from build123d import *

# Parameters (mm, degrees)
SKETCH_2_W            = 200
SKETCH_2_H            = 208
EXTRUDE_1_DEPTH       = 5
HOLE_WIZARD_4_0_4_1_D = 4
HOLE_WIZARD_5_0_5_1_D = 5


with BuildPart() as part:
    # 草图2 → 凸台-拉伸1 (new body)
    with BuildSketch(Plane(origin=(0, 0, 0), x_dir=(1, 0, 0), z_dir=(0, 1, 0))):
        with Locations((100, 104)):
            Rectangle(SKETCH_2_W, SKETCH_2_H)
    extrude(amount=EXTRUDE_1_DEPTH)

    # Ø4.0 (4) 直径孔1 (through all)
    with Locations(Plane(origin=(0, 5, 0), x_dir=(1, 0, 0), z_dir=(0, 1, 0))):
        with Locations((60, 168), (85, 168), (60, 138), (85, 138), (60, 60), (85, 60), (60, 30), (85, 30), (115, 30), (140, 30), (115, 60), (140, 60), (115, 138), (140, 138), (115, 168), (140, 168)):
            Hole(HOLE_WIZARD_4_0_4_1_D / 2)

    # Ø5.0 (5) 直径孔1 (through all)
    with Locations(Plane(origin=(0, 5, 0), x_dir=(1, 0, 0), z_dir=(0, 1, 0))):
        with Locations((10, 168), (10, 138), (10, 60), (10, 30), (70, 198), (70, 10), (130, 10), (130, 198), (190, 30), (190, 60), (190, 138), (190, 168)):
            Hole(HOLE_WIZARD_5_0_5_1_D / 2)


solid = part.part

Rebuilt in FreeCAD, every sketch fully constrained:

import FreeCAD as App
import Part
import Sketcher

V = App.Vector
Q = App.Units.Quantity


def add_polygon(sketch, points):
    """Adds a closed chain of lines whose ends are joined by coincident constraints."""
    first, n = sketch.GeometryCount, len(points)
    for a, b in zip(points, points[1:] + points[:1]):
        sketch.addGeometry(Part.LineSegment(App.Vector(*a, 0), App.Vector(*b, 0)), False)
    for i in range(n):
        sketch.addConstraint(Sketcher.Constraint("Coincident", first + i, 2, first + (i + 1) % n, 1))

doc = App.newDocument("Part")
params = doc.addObject("Spreadsheet::Sheet", "Params")
for row, (alias, value) in enumerate([
    ("sketch1_width", "200 mm"),
    ("sketch1_height", "208 mm"),
    ("pad1_length", "5 mm"),
    ("sketch2_diameter", "4 mm"),
    ("hole_diameter", "4 mm"),
    ("sketch3_diameter", "5 mm"),
    ("hole2_diameter", "5 mm"),
], start=1):
    params.set(f"A{row}", alias)
    params.set(f"B{row}", "=" + value)
    params.setAlias(f"B{row}", alias)

body = doc.addObject("PartDesign::Body", "Body")

# Sketch on XZ plane
sketch1 = body.newObject("Sketcher::SketchObject", "Sketch")
sketch1.AttachmentSupport = (doc.getObject("XZ_Plane"), [""])
sketch1.MapMode = "FlatFace"
add_polygon(sketch1, [(0, -208), (0, 0), (200, 0), (200, -208)])  # lines 0-3
sketch1.addConstraint(Sketcher.Constraint("Vertical", 0))
sketch1.addConstraint(Sketcher.Constraint("Horizontal", 1))
sketch1.addConstraint(Sketcher.Constraint("Vertical", 2))
sketch1.addConstraint(Sketcher.Constraint("Horizontal", 3))
sketch1.addConstraint(Sketcher.Constraint("Coincident", 0, 2, -1, 1))
sketch1.addConstraint(Sketcher.Constraint("DistanceX", 1, 1, 1, 2, Q("200 mm")))
sketch1.addConstraint(Sketcher.Constraint("DistanceY", 0, 1, 0, 2, Q("208 mm")))
sketch1.setExpression("Constraints[9]", "Params.sketch1_width")
sketch1.setExpression("Constraints[10]", "Params.sketch1_height")
pad1 = body.newObject("PartDesign::Pad", "Pad")
pad1.Profile = sketch1
pad1.setExpression("Length", "Params.pad1_length")
pad1.Reversed = True

# Sketch on XZ plane
sketch2 = body.newObject("Sketcher::SketchObject", "Sketch001")
sketch2.AttachmentSupport = (doc.getObject("XZ_Plane"), [""])
sketch2.MapMode = "FlatFace"
sketch2.AttachmentOffset = App.Placement(V(0, 0, -5), App.Rotation())
sketch2.addGeometry(Part.Circle(V(60, -168, 0), V(0, 0, 1), 2), False)
sketch2.addGeometry(Part.Circle(V(85, -168, 0), V(0, 0, 1), 2), False)
sketch2.addGeometry(Part.Circle(V(60, -138, 0), V(0, 0, 1), 2), False)
sketch2.addGeometry(Part.Circle(V(85, -138, 0), V(0, 0, 1), 2), False)
sketch2.addGeometry(Part.Circle(V(60, -60, 0), V(0, 0, 1), 2), False)
sketch2.addGeometry(Part.Circle(V(85, -60, 0), V(0, 0, 1), 2), False)
sketch2.addGeometry(Part.Circle(V(60, -30, 0), V(0, 0, 1), 2), False)
sketch2.addGeometry(Part.Circle(V(85, -30, 0), V(0, 0, 1), 2), False)
sketch2.addGeometry(Part.Circle(V(115, -30, 0), V(0, 0, 1), 2), False)
sketch2.addGeometry(Part.Circle(V(140, -30, 0), V(0, 0, 1), 2), False)
sketch2.addGeometry(Part.Circle(V(115, -60, 0), V(0, 0, 1), 2), False)
sketch2.addGeometry(Part.Circle(V(140, -60, 0), V(0, 0, 1), 2), False)
sketch2.addGeometry(Part.Circle(V(115, -138, 0), V(0, 0, 1), 2), False)
sketch2.addGeometry(Part.Circle(V(140, -138, 0), V(0, 0, 1), 2), False)
sketch2.addGeometry(Part.Circle(V(115, -168, 0), V(0, 0, 1), 2), False)
sketch2.addGeometry(Part.Circle(V(140, -168, 0), V(0, 0, 1), 2), False)
sketch2.addConstraint(Sketcher.Constraint("Equal", 0, 1))
sketch2.addConstraint(Sketcher.Constraint("Equal", 1, 2))
sketch2.addConstraint(Sketcher.Constraint("Equal", 2, 3))
sketch2.addConstraint(Sketcher.Constraint("Equal", 3, 4))
sketch2.addConstraint(Sketcher.Constraint("Equal", 4, 5))
sketch2.addConstraint(Sketcher.Constraint("Equal", 5, 6))
sketch2.addConstraint(Sketcher.Constraint("Equal", 6, 7))
sketch2.addConstraint(Sketcher.Constraint("Equal", 7, 8))
sketch2.addConstraint(Sketcher.Constraint("Equal", 8, 9))
sketch2.addConstraint(Sketcher.Constraint("Equal", 9, 10))
sketch2.addConstraint(Sketcher.Constraint("Equal", 10, 11))
sketch2.addConstraint(Sketcher.Constraint("Equal", 11, 12))
sketch2.addConstraint(Sketcher.Constraint("Equal", 12, 13))
sketch2.addConstraint(Sketcher.Constraint("Equal", 13, 14))
sketch2.addConstraint(Sketcher.Constraint("Equal", 14, 15))
sketch2.addConstraint(Sketcher.Constraint("Horizontal", 0, 3, 1, 3))
sketch2.addConstraint(Sketcher.Constraint("Horizontal", 2, 3, 3, 3))
sketch2.addConstraint(Sketcher.Constraint("Horizontal", 4, 3, 5, 3))
sketch2.addConstraint(Sketcher.Constraint("Horizontal", 6, 3, 7, 3))
sketch2.addConstraint(Sketcher.Constraint("Horizontal", 7, 3, 8, 3))
sketch2.addConstraint(Sketcher.Constraint("Horizontal", 8, 3, 9, 3))
sketch2.addConstraint(Sketcher.Constraint("Horizontal", 5, 3, 10, 3))
sketch2.addConstraint(Sketcher.Constraint("Horizontal", 10, 3, 11, 3))
sketch2.addConstraint(Sketcher.Constraint("Horizontal", 3, 3, 12, 3))
sketch2.addConstraint(Sketcher.Constraint("Horizontal", 12, 3, 13, 3))
sketch2.addConstraint(Sketcher.Constraint("Horizontal", 1, 3, 14, 3))
sketch2.addConstraint(Sketcher.Constraint("Horizontal", 14, 3, 15, 3))
sketch2.addConstraint(Sketcher.Constraint("Vertical", 0, 3, 2, 3))
sketch2.addConstraint(Sketcher.Constraint("Vertical", 1, 3, 3, 3))
sketch2.addConstraint(Sketcher.Constraint("Vertical", 2, 3, 4, 3))
sketch2.addConstraint(Sketcher.Constraint("Vertical", 3, 3, 5, 3))
sketch2.addConstraint(Sketcher.Constraint("Vertical", 4, 3, 6, 3))
sketch2.addConstraint(Sketcher.Constraint("Vertical", 5, 3, 7, 3))
sketch2.addConstraint(Sketcher.Constraint("Vertical", 8, 3, 10, 3))
sketch2.addConstraint(Sketcher.Constraint("Vertical", 9, 3, 11, 3))
sketch2.addConstraint(Sketcher.Constraint("Vertical", 10, 3, 12, 3))
sketch2.addConstraint(Sketcher.Constraint("Vertical", 11, 3, 13, 3))
sketch2.addConstraint(Sketcher.Constraint("Vertical", 12, 3, 14, 3))
sketch2.addConstraint(Sketcher.Constraint("Vertical", 13, 3, 15, 3))
sketch2.addConstraint(Sketcher.Constraint("Diameter", 0, Q("4 mm")))
sketch2.addConstraint(Sketcher.Constraint("DistanceX", -1, 1, 0, 3, Q("60 mm")))
sketch2.addConstraint(Sketcher.Constraint("DistanceY", 0, 3, -1, 1, Q("168 mm")))
sketch2.addConstraint(Sketcher.Constraint("DistanceX", -1, 1, 1, 3, Q("85 mm")))
sketch2.addConstraint(Sketcher.Constraint("DistanceY", 2, 3, -1, 1, Q("138 mm")))
sketch2.addConstraint(Sketcher.Constraint("DistanceY", 4, 3, -1, 1, Q("60 mm")))
sketch2.addConstraint(Sketcher.Constraint("DistanceY", 6, 3, -1, 1, Q("30 mm")))
sketch2.addConstraint(Sketcher.Constraint("DistanceX", -1, 1, 8, 3, Q("115 mm")))
sketch2.addConstraint(Sketcher.Constraint("DistanceX", -1, 1, 9, 3, Q("140 mm")))
sketch2.setExpression("Constraints[39]", "Params.sketch2_diameter")
doc.recompute()
hole = body.newObject("PartDesign::Hole", "Hole")
hole.Profile = sketch2
hole.ThreadType = "None"
hole.setExpression("Diameter", "Params.hole_diameter")
hole.DepthType = "ThroughAll"
hole.Reversed = True

# Sketch on XZ plane
sketch3 = body.newObject("Sketcher::SketchObject", "Sketch002")
sketch3.AttachmentSupport = (doc.getObject("XZ_Plane"), [""])
sketch3.MapMode = "FlatFace"
sketch3.AttachmentOffset = App.Placement(V(0, 0, -5), App.Rotation())
sketch3.addGeometry(Part.Circle(V(10, -168, 0), V(0, 0, 1), 2.5), False)
sketch3.addGeometry(Part.Circle(V(10, -138, 0), V(0, 0, 1), 2.5), False)
sketch3.addGeometry(Part.Circle(V(10, -60, 0), V(0, 0, 1), 2.5), False)
sketch3.addGeometry(Part.Circle(V(10, -30, 0), V(0, 0, 1), 2.5), False)
sketch3.addGeometry(Part.Circle(V(70, -198, 0), V(0, 0, 1), 2.5), False)
sketch3.addGeometry(Part.Circle(V(70, -10, 0), V(0, 0, 1), 2.5), False)
sketch3.addGeometry(Part.Circle(V(130, -10, 0), V(0, 0, 1), 2.5), False)
sketch3.addGeometry(Part.Circle(V(130, -198, 0), V(0, 0, 1), 2.5), False)
sketch3.addGeometry(Part.Circle(V(190, -30, 0), V(0, 0, 1), 2.5), False)
sketch3.addGeometry(Part.Circle(V(190, -60, 0), V(0, 0, 1), 2.5), False)
sketch3.addGeometry(Part.Circle(V(190, -138, 0), V(0, 0, 1), 2.5), False)
sketch3.addGeometry(Part.Circle(V(190, -168, 0), V(0, 0, 1), 2.5), False)
sketch3.addConstraint(Sketcher.Constraint("Equal", 0, 1))
sketch3.addConstraint(Sketcher.Constraint("Equal", 1, 2))
sketch3.addConstraint(Sketcher.Constraint("Equal", 2, 3))
sketch3.addConstraint(Sketcher.Constraint("Equal", 3, 4))
sketch3.addConstraint(Sketcher.Constraint("Equal", 4, 5))
sketch3.addConstraint(Sketcher.Constraint("Equal", 5, 6))
sketch3.addConstraint(Sketcher.Constraint("Equal", 6, 7))
sketch3.addConstraint(Sketcher.Constraint("Equal", 7, 8))
sketch3.addConstraint(Sketcher.Constraint("Equal", 8, 9))
sketch3.addConstraint(Sketcher.Constraint("Equal", 9, 10))
sketch3.addConstraint(Sketcher.Constraint("Equal", 10, 11))
sketch3.addConstraint(Sketcher.Constraint("Horizontal", 5, 3, 6, 3))
sketch3.addConstraint(Sketcher.Constraint("Horizontal", 4, 3, 7, 3))
sketch3.addConstraint(Sketcher.Constraint("Horizontal", 3, 3, 8, 3))
sketch3.addConstraint(Sketcher.Constraint("Horizontal", 2, 3, 9, 3))
sketch3.addConstraint(Sketcher.Constraint("Horizontal", 1, 3, 10, 3))
sketch3.addConstraint(Sketcher.Constraint("Horizontal", 0, 3, 11, 3))
sketch3.addConstraint(Sketcher.Constraint("Vertical", 0, 3, 1, 3))
sketch3.addConstraint(Sketcher.Constraint("Vertical", 1, 3, 2, 3))
sketch3.addConstraint(Sketcher.Constraint("Vertical", 2, 3, 3, 3))
sketch3.addConstraint(Sketcher.Constraint("Vertical", 4, 3, 5, 3))
sketch3.addConstraint(Sketcher.Constraint("Vertical", 6, 3, 7, 3))
sketch3.addConstraint(Sketcher.Constraint("Vertical", 8, 3, 9, 3))
sketch3.addConstraint(Sketcher.Constraint("Vertical", 9, 3, 10, 3))
sketch3.addConstraint(Sketcher.Constraint("Vertical", 10, 3, 11, 3))
sketch3.addConstraint(Sketcher.Constraint("Diameter", 0, Q("5 mm")))
sketch3.addConstraint(Sketcher.Constraint("DistanceX", -1, 1, 0, 3, Q("10 mm")))
sketch3.addConstraint(Sketcher.Constraint("DistanceY", 0, 3, -1, 1, Q("168 mm")))
sketch3.addConstraint(Sketcher.Constraint("DistanceY", 1, 3, -1, 1, Q("138 mm")))
sketch3.addConstraint(Sketcher.Constraint("DistanceY", 2, 3, -1, 1, Q("60 mm")))
sketch3.addConstraint(Sketcher.Constraint("DistanceY", 3, 3, -1, 1, Q("30 mm")))
sketch3.addConstraint(Sketcher.Constraint("DistanceX", -1, 1, 4, 3, Q("70 mm")))
sketch3.addConstraint(Sketcher.Constraint("DistanceY", 4, 3, -1, 1, Q("198 mm")))
sketch3.addConstraint(Sketcher.Constraint("DistanceY", 5, 3, -1, 1, Q("10 mm")))
sketch3.addConstraint(Sketcher.Constraint("DistanceX", -1, 1, 6, 3, Q("130 mm")))
sketch3.addConstraint(Sketcher.Constraint("DistanceX", -1, 1, 8, 3, Q("190 mm")))
sketch3.setExpression("Constraints[25]", "Params.sketch3_diameter")
doc.recompute()
hole2 = body.newObject("PartDesign::Hole", "Hole001")
hole2.Profile = sketch3
hole2.ThreadType = "None"
hole2.setExpression("Diameter", "Params.hole2_diameter")
hole2.DepthType = "ThroughAll"
hole2.Reversed = True

doc.recompute()
